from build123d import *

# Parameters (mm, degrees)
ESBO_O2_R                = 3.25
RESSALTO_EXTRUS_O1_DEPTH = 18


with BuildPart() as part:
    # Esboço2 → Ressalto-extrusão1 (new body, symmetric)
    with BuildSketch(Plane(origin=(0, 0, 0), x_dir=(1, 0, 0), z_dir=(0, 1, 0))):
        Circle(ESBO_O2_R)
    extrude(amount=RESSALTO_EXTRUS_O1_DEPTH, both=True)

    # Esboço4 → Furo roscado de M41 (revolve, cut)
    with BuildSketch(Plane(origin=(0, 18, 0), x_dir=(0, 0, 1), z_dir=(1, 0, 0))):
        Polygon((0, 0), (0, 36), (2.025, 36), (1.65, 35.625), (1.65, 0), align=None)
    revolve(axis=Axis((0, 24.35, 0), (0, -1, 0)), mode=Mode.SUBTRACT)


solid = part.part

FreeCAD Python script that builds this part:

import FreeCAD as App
import Part
import Sketcher

V = App.Vector
Q = App.Units.Quantity

doc = App.newDocument("Part")
params = doc.addObject("Spreadsheet::Sheet", "Params")
for row, (alias, value) in enumerate([
    ("sketch1_diameter", "6.5 mm"),
    ("pad1_length", "36 mm"),
    ("sketch2_width", "36 mm"),
    ("sketch2_height", "1.65 mm"),
    ("groove_angle", "360 deg"),
], start=1):
    params.set(f"A{row}", alias)
    params.set(f"B{row}", "=" + value)
    params.setAlias(f"B{row}", alias)

body = doc.addObject("PartDesign::Body", "Body")

# Sketch on XZ plane
sketch1 = body.newObject("Sketcher::SketchObject", "Sketch")
sketch1.AttachmentSupport = (doc.getObject("XZ_Plane"), [""])
sketch1.MapMode = "FlatFace"
sketch1.addGeometry(Part.Circle(V(0, 0, 0), V(0, 0, 1), 3.2), False)
sketch1.addConstraint(Sketcher.Constraint("Coincident", 0, 3, -1, 1))
sketch1.addConstraint(Sketcher.Constraint("Diameter", 0, Q("6.5 mm")))
sketch1.setExpression("Constraints[1]", "Params.sketch1_diameter")
pad1 = body.newObject("PartDesign::Pad", "Pad")
pad1.Profile = sketch1
pad1.setExpression("Length", "Params.pad1_length")
pad1.Midplane = True

# Sketch on YZ plane
sketch2 = body.newObject("Sketcher::SketchObject", "Sketch001")
sketch2.AttachmentSupport = (doc.getObject("YZ_Plane"), [""])
sketch2.MapMode = "FlatFace"
sketch2.addGeometry(Part.LineSegment(V(-18, 0, 0), V(18, 0, 0)), False)
sketch2.addGeometry(Part.LineSegment(V(18, 0, 0), V(18, 1.6, 0)), False)
sketch2.addGeometry(Part.LineSegment(V(18, 1.6, 0), V(-17.6, 1.6, 0)), False)
sketch2.addGeometry(Part.LineSegment(V(-17.6, 1.6, 0), V(-18, 2, 0)), False)
sketch2.addGeometry(Part.LineSegment(V(-18, 2, 0), V(-18, 0, 0)), False)
sketch2.addConstraint(Sketcher.Constraint("Coincident", 0, 2, 1, 1))
sketch2.addConstraint(Sketcher.Constraint("Coincident", 1, 2, 2, 1))
sketch2.addConstraint(Sketcher.Constraint("Coincident", 2, 2, 3, 1))
sketch2.addConstraint(Sketcher.Constraint("Coincident", 3, 2, 4, 1))
sketch2.addConstraint(Sketcher.Constraint("Coincident", 4, 2, 0, 1))
sketch2.addConstraint(Sketcher.Constraint("Horizontal", 0))
sketch2.addConstraint(Sketcher.Constraint("Vertical", 1))
sketch2.addConstraint(Sketcher.Constraint("Horizontal", 2))
sketch2.addConstraint(Sketcher.Constraint("Vertical", 4))
sketch2.addConstraint(Sketcher.Constraint("Symmetric", 0, 2, 4, 2, -1, 1))
sketch2.addConstraint(Sketcher.Constraint("DistanceX", 0, 1, 0, 2, Q("36 mm")))
sketch2.addConstraint(Sketcher.Constraint("Angle", 3, Q("135 deg")))
sketch2.addConstraint(Sketcher.Constraint("DistanceY", 1, 1, 1, 2, Q("1.65 mm")))
sketch2.addConstraint(Sketcher.Constraint("DistanceX", 2, 2, 2, 1, Q("35.625 mm")))
sketch2.setExpression("Constraints[10]", "Params.sketch2_width")
sketch2.setExpression("Constraints[12]", "Params.sketch2_height")
groove = body.newObject("PartDesign::Groove", "Groove")
groove.Profile = sketch2
groove.ReferenceAxis = (sketch2, ["H_Axis"])
groove.setExpression("Angle", "Params.groove_angle")

doc.recompute()
